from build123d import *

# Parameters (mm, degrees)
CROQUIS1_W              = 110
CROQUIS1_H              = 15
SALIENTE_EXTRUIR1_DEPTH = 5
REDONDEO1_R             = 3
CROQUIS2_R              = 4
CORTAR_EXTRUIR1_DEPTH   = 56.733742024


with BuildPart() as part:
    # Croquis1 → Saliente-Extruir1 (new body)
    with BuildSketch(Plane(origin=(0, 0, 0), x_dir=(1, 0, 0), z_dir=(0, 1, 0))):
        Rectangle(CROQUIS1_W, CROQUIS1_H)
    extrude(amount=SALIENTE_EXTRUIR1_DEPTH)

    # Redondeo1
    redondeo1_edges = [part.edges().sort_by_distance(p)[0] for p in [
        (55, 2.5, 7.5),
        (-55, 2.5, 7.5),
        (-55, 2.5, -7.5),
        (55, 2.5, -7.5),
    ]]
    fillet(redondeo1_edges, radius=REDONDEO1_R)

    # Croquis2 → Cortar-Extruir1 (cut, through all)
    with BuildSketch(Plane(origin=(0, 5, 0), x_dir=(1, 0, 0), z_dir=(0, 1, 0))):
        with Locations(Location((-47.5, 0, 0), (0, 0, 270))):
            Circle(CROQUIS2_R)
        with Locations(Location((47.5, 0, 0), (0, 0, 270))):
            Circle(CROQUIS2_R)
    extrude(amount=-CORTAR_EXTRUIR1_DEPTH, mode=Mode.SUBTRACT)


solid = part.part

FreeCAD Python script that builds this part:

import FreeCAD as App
import Part
import Sketcher
from FreeCAD import Vector


def edges_at(feature, points):
    """Names of the edges that pass closest to the given points."""
    edges = feature.Shape.Edges
    near = lambda p: min(range(len(edges)), key=lambda i: edges[i].distToShape(Part.Vertex(*p))[0])
    return sorted({f"Edge{near(p) + 1}" for p in points})


def add_polygon(sketch, points):
    """Adds a closed chain of lines whose ends are joined by coincident constraints."""
    first, n = sketch.GeometryCount, len(points)
    for a, b in zip(points, points[1:] + points[:1]):
        sketch.addGeometry(Part.LineSegment(App.Vector(*a, 0), App.Vector(*b, 0)), False)
    for i in range(n):
        sketch.addConstraint(Sketcher.Constraint("Coincident", first + i, 2, first + (i + 1) % n, 1))

doc = App.newDocument("Part")
body = doc.addObject("PartDesign::Body", "Body")

# Sketch on XZ plane
sketch1 = body.newObject("Sketcher::SketchObject", "Sketch")
sketch1.AttachmentSupport = (doc.getObject("XZ_Plane"), [""])
sketch1.MapMode = "FlatFace"
add_polygon(sketch1, [(-55, -8), (-55, 8), (55, 8), (55, -8)])  # lines 0-3
sketch1.addConstraint([
    Sketcher.Constraint("Vertical", 0),
    Sketcher.Constraint("Horizontal", 1),
    Sketcher.Constraint("Vertical", 2),
    Sketcher.Constraint("Horizontal", 3),
    Sketcher.Constraint("Symmetric", 0, 2, 2, 2, -1, 1),
    Sketcher.Constraint("DistanceX", 1, 1, 1, 2, 110.0),
    Sketcher.Constraint("DistanceY", 0, 1, 0, 2, 15.0),
])
pad1 = body.newObject("PartDesign::Pad", "Pad")
pad1.Profile = sketch1
pad1.Length = 5
pad1.Reversed = True
doc.recompute()

fillet = body.newObject("PartDesign::Fillet", "Fillet")
fillet.Base = (pad1, edges_at(pad1, [
    (55, 2.5, 7.5),
    (-55, 2.5, 7.5),
    (-55, 2.5, -7.5),
    (55, 2.5, -7.5),
]))
fillet.Radius = 3

# Sketch on XZ plane
sketch2 = body.newObject("Sketcher::SketchObject", "Sketch001")
sketch2.AttachmentSupport = (doc.getObject("XZ_Plane"), [""])
sketch2.MapMode = "FlatFace"
sketch2.AttachmentOffset = App.Placement(Vector(0, 0, -5), App.Rotation())
sketch2.addGeometry([
    Part.Circle(Vector(-47.5, 0, 0), Vector(0, 0, 1), 4),
    Part.Circle(Vector(47.5, 0, 0), Vector(0, 0, 1), 4),
], False)
sketch2.addConstraint([
    Sketcher.Constraint("Equal", 0, 1),
    Sketcher.Constraint("Symmetric", 0, 3, 1, 3, -1, 1),
    Sketcher.Constraint("PointOnObject", 0, 3, -1),
    Sketcher.Constraint("Diameter", 0, 8.0),
    Sketcher.Constraint("DistanceX", 0, 3, 1, 3, 95.0),
])
pocket1 = body.newObject("PartDesign::Pocket", "Pocket")
pocket1.Profile = sketch2
pocket1.Type = "ThroughAll"
pocket1.Reversed = True

doc.recompute()
